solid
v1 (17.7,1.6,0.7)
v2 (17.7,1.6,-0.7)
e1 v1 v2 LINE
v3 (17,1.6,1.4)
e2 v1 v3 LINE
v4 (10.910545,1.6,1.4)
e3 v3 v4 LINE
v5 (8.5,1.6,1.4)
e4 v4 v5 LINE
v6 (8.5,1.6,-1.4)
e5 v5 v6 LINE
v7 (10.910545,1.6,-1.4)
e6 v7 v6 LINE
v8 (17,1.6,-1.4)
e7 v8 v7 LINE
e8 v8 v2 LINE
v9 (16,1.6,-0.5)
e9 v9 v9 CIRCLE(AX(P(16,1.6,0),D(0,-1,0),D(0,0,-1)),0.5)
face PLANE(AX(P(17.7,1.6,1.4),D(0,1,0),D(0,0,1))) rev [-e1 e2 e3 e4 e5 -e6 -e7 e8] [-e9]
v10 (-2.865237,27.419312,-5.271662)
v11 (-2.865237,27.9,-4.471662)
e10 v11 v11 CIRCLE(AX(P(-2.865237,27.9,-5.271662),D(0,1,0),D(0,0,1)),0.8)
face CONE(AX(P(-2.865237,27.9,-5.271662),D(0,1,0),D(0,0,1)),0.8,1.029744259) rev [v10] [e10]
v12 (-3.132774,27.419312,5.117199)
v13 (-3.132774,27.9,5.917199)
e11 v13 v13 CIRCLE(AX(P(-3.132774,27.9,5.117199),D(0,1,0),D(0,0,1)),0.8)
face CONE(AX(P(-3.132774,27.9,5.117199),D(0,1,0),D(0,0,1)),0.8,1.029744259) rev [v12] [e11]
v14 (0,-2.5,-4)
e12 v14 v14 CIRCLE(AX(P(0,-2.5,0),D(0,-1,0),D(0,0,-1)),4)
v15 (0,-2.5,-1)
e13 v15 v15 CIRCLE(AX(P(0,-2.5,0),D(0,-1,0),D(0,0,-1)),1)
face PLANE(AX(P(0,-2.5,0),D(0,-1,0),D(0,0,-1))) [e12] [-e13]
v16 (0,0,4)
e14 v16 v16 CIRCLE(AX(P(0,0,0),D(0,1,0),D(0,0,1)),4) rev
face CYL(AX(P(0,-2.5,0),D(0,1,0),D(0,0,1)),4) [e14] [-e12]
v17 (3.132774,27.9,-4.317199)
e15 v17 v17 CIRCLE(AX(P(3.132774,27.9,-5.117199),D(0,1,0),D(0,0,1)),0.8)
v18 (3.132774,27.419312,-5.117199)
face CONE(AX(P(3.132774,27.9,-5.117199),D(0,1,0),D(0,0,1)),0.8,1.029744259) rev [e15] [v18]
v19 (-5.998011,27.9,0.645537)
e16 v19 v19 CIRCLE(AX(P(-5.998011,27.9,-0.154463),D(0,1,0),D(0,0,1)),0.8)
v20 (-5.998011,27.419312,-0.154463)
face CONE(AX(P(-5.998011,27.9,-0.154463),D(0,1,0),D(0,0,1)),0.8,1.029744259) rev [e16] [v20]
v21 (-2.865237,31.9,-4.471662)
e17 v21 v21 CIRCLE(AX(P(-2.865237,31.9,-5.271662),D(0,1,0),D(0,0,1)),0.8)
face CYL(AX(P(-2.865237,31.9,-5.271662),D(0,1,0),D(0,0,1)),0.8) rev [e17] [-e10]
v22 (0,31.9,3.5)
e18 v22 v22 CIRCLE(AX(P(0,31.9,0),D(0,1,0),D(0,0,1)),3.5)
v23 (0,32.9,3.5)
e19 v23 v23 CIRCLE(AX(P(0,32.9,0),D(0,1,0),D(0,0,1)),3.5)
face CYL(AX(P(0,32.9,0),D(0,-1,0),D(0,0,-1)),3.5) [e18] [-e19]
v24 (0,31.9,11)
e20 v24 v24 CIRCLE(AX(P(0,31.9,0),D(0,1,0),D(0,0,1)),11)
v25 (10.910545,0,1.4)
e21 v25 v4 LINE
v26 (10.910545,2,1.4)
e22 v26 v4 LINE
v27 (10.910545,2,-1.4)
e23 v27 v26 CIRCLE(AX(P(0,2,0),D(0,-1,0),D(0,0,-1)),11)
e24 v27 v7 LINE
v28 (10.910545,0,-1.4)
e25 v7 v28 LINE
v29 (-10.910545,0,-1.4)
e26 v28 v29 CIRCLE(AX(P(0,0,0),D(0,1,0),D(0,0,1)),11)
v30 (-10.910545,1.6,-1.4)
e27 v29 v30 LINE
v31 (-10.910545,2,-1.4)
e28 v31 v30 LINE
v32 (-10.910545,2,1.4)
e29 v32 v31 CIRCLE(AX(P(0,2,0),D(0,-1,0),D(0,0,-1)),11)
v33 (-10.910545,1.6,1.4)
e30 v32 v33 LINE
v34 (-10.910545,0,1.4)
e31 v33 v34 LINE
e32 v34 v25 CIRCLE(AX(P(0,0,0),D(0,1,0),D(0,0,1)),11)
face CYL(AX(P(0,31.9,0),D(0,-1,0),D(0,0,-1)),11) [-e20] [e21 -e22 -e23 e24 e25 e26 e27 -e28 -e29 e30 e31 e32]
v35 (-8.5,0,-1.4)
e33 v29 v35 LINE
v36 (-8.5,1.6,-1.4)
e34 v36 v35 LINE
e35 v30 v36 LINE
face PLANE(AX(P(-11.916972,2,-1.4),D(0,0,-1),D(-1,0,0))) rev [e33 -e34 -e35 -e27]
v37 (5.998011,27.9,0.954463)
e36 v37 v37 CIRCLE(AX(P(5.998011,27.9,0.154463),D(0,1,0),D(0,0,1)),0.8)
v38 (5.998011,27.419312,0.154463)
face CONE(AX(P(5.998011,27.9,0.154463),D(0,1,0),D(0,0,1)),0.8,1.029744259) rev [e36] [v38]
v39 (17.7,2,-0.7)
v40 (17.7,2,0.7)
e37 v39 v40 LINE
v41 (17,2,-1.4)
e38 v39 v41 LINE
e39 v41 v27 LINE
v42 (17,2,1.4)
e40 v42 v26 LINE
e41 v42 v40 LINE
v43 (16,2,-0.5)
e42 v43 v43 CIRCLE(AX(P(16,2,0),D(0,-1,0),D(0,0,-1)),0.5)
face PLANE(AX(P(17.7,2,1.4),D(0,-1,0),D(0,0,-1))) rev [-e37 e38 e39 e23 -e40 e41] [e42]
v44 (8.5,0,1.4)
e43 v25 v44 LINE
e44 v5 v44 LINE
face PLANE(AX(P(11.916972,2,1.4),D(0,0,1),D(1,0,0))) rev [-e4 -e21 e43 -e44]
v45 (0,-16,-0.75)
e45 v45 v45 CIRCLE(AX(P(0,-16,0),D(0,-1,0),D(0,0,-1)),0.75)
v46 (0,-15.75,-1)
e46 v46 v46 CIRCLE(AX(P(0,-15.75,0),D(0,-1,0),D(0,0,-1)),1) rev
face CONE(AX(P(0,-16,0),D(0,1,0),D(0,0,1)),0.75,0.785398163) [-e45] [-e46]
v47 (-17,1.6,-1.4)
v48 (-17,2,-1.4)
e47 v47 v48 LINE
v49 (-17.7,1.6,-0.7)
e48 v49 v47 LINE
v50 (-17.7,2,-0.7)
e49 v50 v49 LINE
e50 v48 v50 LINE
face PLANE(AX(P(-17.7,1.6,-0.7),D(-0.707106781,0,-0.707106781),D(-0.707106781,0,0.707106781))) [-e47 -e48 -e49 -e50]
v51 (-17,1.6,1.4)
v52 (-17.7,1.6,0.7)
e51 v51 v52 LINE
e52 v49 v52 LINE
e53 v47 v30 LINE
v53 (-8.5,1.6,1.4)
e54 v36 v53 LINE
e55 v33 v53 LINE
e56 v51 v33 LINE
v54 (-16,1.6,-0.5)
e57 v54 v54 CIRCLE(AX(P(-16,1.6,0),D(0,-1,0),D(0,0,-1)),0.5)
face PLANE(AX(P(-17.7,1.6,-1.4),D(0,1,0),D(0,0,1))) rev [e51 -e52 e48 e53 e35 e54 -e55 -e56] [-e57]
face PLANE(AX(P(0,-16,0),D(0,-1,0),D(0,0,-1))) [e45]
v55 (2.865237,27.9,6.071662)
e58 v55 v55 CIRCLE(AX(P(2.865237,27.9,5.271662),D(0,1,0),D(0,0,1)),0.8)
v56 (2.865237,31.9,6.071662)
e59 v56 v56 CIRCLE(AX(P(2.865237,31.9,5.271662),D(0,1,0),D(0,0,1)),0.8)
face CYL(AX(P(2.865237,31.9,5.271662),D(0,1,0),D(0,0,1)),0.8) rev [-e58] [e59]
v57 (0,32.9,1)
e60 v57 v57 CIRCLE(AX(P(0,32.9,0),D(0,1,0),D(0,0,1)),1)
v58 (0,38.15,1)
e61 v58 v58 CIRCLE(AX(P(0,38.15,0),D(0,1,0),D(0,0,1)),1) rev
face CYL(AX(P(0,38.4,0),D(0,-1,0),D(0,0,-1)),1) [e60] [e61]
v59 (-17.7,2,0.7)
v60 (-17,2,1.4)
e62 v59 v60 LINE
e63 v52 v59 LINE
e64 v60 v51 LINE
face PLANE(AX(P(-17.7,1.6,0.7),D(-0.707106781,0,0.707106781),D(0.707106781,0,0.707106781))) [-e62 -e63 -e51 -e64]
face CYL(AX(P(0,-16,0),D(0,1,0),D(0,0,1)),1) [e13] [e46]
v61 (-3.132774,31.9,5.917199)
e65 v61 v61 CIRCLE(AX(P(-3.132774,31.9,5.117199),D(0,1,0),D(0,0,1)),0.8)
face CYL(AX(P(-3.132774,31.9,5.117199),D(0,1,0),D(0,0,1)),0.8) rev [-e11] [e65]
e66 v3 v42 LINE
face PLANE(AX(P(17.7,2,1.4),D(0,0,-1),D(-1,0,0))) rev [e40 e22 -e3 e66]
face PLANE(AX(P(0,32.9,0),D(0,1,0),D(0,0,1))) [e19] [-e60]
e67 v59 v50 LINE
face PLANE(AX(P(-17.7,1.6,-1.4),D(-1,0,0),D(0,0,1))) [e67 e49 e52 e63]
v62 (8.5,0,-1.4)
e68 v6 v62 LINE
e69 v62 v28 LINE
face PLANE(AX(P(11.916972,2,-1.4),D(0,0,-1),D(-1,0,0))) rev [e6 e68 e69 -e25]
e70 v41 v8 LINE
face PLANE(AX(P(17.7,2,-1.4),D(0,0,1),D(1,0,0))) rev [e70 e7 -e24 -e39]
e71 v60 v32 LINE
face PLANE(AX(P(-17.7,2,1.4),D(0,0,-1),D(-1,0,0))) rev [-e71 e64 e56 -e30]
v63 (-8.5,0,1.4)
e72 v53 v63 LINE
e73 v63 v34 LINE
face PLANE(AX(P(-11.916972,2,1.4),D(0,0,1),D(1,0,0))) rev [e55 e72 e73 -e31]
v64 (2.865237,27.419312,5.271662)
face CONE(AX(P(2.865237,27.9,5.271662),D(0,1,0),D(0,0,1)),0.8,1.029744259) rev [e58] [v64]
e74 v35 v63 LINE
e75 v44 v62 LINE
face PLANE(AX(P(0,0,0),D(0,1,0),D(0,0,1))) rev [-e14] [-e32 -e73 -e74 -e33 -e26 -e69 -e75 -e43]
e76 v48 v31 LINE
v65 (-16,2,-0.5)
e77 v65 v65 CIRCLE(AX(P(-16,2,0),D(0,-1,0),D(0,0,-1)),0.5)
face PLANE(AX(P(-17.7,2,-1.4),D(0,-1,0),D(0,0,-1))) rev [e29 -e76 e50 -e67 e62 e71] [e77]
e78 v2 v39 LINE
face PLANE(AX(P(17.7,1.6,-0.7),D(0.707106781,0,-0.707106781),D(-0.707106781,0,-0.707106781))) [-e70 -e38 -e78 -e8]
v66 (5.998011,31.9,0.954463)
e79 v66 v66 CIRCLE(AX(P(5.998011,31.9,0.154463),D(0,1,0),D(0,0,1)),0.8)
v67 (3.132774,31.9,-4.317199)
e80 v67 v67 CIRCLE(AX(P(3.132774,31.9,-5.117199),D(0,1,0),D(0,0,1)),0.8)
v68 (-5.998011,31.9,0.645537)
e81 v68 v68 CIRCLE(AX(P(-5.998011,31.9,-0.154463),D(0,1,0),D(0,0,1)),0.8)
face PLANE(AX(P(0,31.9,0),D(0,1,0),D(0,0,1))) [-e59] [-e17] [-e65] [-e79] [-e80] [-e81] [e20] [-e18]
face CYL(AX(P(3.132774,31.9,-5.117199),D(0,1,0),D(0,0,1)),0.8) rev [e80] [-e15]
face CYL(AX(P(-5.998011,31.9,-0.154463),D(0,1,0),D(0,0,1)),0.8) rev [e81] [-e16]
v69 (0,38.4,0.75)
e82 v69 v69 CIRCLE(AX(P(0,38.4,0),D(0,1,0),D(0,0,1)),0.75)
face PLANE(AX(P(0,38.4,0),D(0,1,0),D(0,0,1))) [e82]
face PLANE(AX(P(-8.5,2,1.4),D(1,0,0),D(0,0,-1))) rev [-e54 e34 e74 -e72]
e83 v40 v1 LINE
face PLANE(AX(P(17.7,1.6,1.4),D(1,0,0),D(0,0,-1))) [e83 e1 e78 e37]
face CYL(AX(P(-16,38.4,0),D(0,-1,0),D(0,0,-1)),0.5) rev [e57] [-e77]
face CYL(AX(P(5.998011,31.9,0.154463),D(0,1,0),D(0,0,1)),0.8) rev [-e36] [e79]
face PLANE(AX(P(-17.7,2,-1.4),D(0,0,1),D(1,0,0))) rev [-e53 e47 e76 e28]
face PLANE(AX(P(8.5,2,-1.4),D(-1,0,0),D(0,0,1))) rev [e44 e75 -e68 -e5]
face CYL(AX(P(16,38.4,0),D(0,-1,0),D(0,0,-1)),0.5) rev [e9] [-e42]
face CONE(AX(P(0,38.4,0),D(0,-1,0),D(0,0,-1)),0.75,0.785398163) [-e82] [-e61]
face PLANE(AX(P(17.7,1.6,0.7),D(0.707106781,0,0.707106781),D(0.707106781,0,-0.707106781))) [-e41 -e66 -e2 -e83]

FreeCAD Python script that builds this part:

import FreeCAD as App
import Part
import Sketcher
from FreeCAD import Vector
Q = App.Units.Quantity


def edges_at(feature, points):
    """Names of the edges that pass closest to the given points."""
    edges = feature.Shape.Edges
    near = lambda p: min(range(len(edges)), key=lambda i: edges[i].distToShape(Part.Vertex(*p))[0])
    return sorted({f"Edge{near(p) + 1}" for p in points})


def add_polygon(sketch, points):
    """Adds a closed chain of lines whose ends are joined by coincident constraints."""
    first, n = sketch.GeometryCount, len(points)
    for a, b in zip(points, points[1:] + points[:1]):
        sketch.addGeometry(Part.LineSegment(App.Vector(*a, 0), App.Vector(*b, 0)), False)
    for i in range(n):
        sketch.addConstraint(Sketcher.Constraint("Coincident", first + i, 2, first + (i + 1) % n, 1))

doc = App.newDocument("Part")
body = doc.addObject("PartDesign::Body", "Body")

# Sketch on XZ plane
sketch1 = body.newObject("Sketcher::SketchObject", "Sketch")
sketch1.AttachmentSupport = (doc.getObject("XZ_Plane"), [""])
sketch1.MapMode = "FlatFace"
sketch1.addGeometry(Part.Circle(Vector(0, 0, 0), Vector(0, 0, 1), 11), False)
sketch1.addConstraint([
    Sketcher.Constraint("Coincident", 0, 3, -1, 1),
    Sketcher.Constraint("Diameter", 0, Q("22 mm")),
])
pad1 = body.newObject("PartDesign::Pad", "Pad")
pad1.Profile = sketch1
pad1.Length = 31.9
pad1.Reversed = True

# Sketch on XZ plane
sketch2 = body.newObject("Sketcher::SketchObject", "Sketch001")
sketch2.AttachmentSupport = (doc.getObject("XZ_Plane"), [""])
sketch2.MapMode = "FlatFace"
sketch2.AttachmentOffset = App.Placement(Vector(0, 0, -31.9), App.Rotation())
sketch2.addGeometry(Part.Circle(Vector(0, 0, 0), Vector(0, 0, 1), 3.5), False)
sketch2.addConstraint([
    Sketcher.Constraint("Coincident", 0, 3, -1, 1),
    Sketcher.Constraint("Diameter", 0, Q("7 mm")),
])
pad2 = body.newObject("PartDesign::Pad", "Pad001")
pad2.Profile = sketch2
pad2.Length = 1
pad2.Reversed = True

# Sketch on XZ plane
sketch3 = body.newObject("Sketcher::SketchObject", "Sketch002")
sketch3.AttachmentSupport = (doc.getObject("XZ_Plane"), [""])
sketch3.MapMode = "FlatFace"
sketch3.AttachmentOffset = App.Placement(Vector(0, 0, -32.9), App.Rotation())
sketch3.addGeometry(Part.Circle(Vector(0, 0, 0), Vector(0, 0, 1), 1), False)
sketch3.addConstraint([
    Sketcher.Constraint("Coincident", 0, 3, -1, 1),
    Sketcher.Constraint("Diameter", 0, Q("2 mm")),
])
pad3 = body.newObject("PartDesign::Pad", "Pad002")
pad3.Profile = sketch3
pad3.Length = 5.5
pad3.Reversed = True
doc.recompute()

chamfer = body.newObject("PartDesign::Chamfer", "Chamfer")
chamfer.Base = (pad3, edges_at(pad3, [(-1, 38.4, 0)]))
chamfer.Size = 0.25

# Sketch on XZ plane
sketch4 = body.newObject("Sketcher::SketchObject", "Sketch003")
sketch4.AttachmentSupport = (doc.getObject("XZ_Plane"), [""])
sketch4.MapMode = "FlatFace"
sketch4.addGeometry(Part.Circle(Vector(0, 0, 0), Vector(0, 0, 1), 4), False)
sketch4.addConstraint([
    Sketcher.Constraint("Coincident", 0, 3, -1, 1),
    Sketcher.Constraint("Diameter", 0, Q("8 mm")),
])
pad4 = body.newObject("PartDesign::Pad", "Pad003")
pad4.Profile = sketch4
pad4.Length = 2.5

# Sketch on XZ plane
sketch5 = body.newObject("Sketcher::SketchObject", "Sketch004")
sketch5.AttachmentSupport = (doc.getObject("XZ_Plane"), [""])
sketch5.MapMode = "FlatFace"
sketch5.AttachmentOffset = App.Placement(Vector(0, 0, 2.5), App.Rotation())
sketch5.addGeometry(Part.Circle(Vector(0, 0, 0), Vector(0, 0, 1), 1), False)
sketch5.addConstraint([
    Sketcher.Constraint("Coincident", 0, 3, -1, 1),
    Sketcher.Constraint("Diameter", 0, Q("2 mm")),
])
pad5 = body.newObject("PartDesign::Pad", "Pad004")
pad5.Profile = sketch5
pad5.Length = 13.5

# Sketch on YZ plane
sketch6 = body.newObject("Sketcher::SketchObject", "Sketch005")
sketch6.AttachmentSupport = (doc.getObject("YZ_Plane"), [""])
sketch6.MapMode = "FlatFace"
sketch6.AttachmentOffset = App.Placement(Vector(0, 0, -2.865237), App.Rotation())
add_polygon(sketch6, [(27.4, -5.3), (31.9, -5.3), (31.9, -4.5), (27.9, -4.5)])  # lines 0-3
sketch6.addGeometry(Part.LineSegment(Vector(31.9, -5.3, 0), Vector(27.4, -5.3, 0)), True)  # axis
sketch6.addConstraint([
    Sketcher.Constraint("Horizontal", 0),
    Sketcher.Constraint("Vertical", 1),
    Sketcher.Constraint("Horizontal", 2),
    Sketcher.Constraint("Horizontal", 4),
    Sketcher.Constraint("Coincident", 4, 1, 0, 2),
    Sketcher.Constraint("Equal", 0, 4),
    Sketcher.Constraint("DistanceX", 2, 2, 2, 1, Q("4 mm")),
    Sketcher.Constraint("Angle", 3, Q("-121 deg")),
    Sketcher.Constraint("DistanceY", 1, 1, 1, 2, Q("0.8 mm")),
    Sketcher.Constraint("DistanceX", -1, 1, 0, 2, Q("31.9 mm")),
    Sketcher.Constraint("DistanceY", 0, 2, -1, 1, Q("5.271662 mm")),
])
groove = body.newObject("PartDesign::Groove", "Groove")
groove.Profile = sketch6
groove.ReferenceAxis = (sketch6, ["Axis0"])
groove.Angle = 360
doc.recompute()

polarpattern = body.newObject("PartDesign::PolarPattern", "PolarPattern")
polarpattern.Originals = [groove]
polarpattern.Axis = (doc.getObject("Y_Axis"), [""])
polarpattern.Angle = 360
polarpattern.Occurrences = 6
body.Tip = polarpattern
doc.recompute()

chamfer2 = body.newObject("PartDesign::Chamfer", "Chamfer001")
chamfer2.Base = (polarpattern, edges_at(polarpattern, [(-1, -16, 0)]))
chamfer2.Size = 0.25

# Sketch on XZ plane
sketch7 = body.newObject("Sketcher::SketchObject", "Sketch006")
sketch7.AttachmentSupport = (doc.getObject("XZ_Plane"), [""])
sketch7.MapMode = "FlatFace"
add_polygon(sketch7, [(-11.9, 1.4), (-11.9, -1.4), (-8.5, -1.4), (-8.5, 1.4)])  # lines 0-3
sketch7.addConstraint([
    Sketcher.Constraint("Vertical", 0),
    Sketcher.Constraint("Horizontal", 1),
    Sketcher.Constraint("Vertical", 2),
    Sketcher.Constraint("Horizontal", 3),
    Sketcher.Constraint("DistanceY", 0, 2, 0, 1, Q("2.8 mm")),
    Sketcher.Constraint("DistanceY", 0, 2, -1, 1, Q("1.4 mm")),
    Sketcher.Constraint("DistanceX", 1, 2, -1, 1, Q("8.5 mm")),
    Sketcher.Constraint("DistanceX", 1, 1, 1, 2, Q("3.416972 mm")),
])
pocket1 = body.newObject("PartDesign::Pocket", "Pocket")
pocket1.Profile = sketch7
pocket1.Length = 2
doc.recompute()

polarpattern2 = body.newObject("PartDesign::PolarPattern", "PolarPattern001")
polarpattern2.Originals = [pocket1]
polarpattern2.Axis = (doc.getObject("Y_Axis"), [""])
polarpattern2.Angle = 360
polarpattern2.Occurrences = 2
body.Tip = polarpattern2

# Sketch on YZ plane
sketch8 = body.newObject("Sketcher::SketchObject", "Sketch007")
sketch8.AttachmentSupport = (doc.getObject("YZ_Plane"), [""])
sketch8.MapMode = "FlatFace"
sketch8.AttachmentOffset = App.Placement(Vector(0, 0, 8.5), App.Rotation())
add_polygon(sketch8, [(2, 1.4), (1.6, 1.4), (1.6, -1.4), (2, -1.4)])  # lines 0-3
sketch8.addConstraint([
    Sketcher.Constraint("Horizontal", 0),
    Sketcher.Constraint("Vertical", 1),
    Sketcher.Constraint("Horizontal", 2),
    Sketcher.Constraint("Vertical", 3),
    Sketcher.Constraint("DistanceX", 0, 2, 0, 1, Q("0.4 mm")),
    Sketcher.Constraint("DistanceY", 1, 2, 1, 1, Q("2.8 mm")),
    Sketcher.Constraint("DistanceX", -1, 1, 2, 2, Q("2 mm")),
    Sketcher.Constraint("DistanceY", -1, 1, 0, 2, Q("1.4 mm")),
])
pad6 = body.newObject("PartDesign::Pad", "Pad005")
pad6.Profile = sketch8
pad6.Length = 9.2

# Sketch on YZ plane
sketch9 = body.newObject("Sketcher::SketchObject", "Sketch008")
sketch9.AttachmentSupport = (doc.getObject("YZ_Plane"), [""])
sketch9.MapMode = "FlatFace"
sketch9.AttachmentOffset = App.Placement(Vector(0, 0, -8.5), App.Rotation())
add_polygon(sketch9, [(2, -1.4), (1.6, -1.4), (1.6, 1.4), (2, 1.4)])  # lines 0-3
sketch9.addConstraint([
    Sketcher.Constraint("Horizontal", 0),
    Sketcher.Constraint("Vertical", 1),
    Sketcher.Constraint("Horizontal", 2),
    Sketcher.Constraint("Vertical", 3),
    Sketcher.Constraint("DistanceX", 0, 2, 0, 1, Q("0.4 mm")),
    Sketcher.Constraint("DistanceY", 1, 1, 1, 2, Q("2.8 mm")),
    Sketcher.Constraint("DistanceX", -1, 1, 2, 2, Q("2 mm")),
    Sketcher.Constraint("DistanceY", 0, 2, -1, 1, Q("1.4 mm")),
])
pad7 = body.newObject("PartDesign::Pad", "Pad006")
pad7.Profile = sketch9
pad7.Length = 9.2
pad7.Reversed = True
doc.recompute()

chamfer3 = body.newObject("PartDesign::Chamfer", "Chamfer002")
chamfer3.Base = (pad7, edges_at(pad7, [(17.7, 1.8, 1.4), (17.7, 1.8, -1.4)]))
chamfer3.Size = 0.7
doc.recompute()

chamfer4 = body.newObject("PartDesign::Chamfer", "Chamfer003")
chamfer4.Base = (chamfer3, edges_at(chamfer3, [(-17.7, 1.8, -1.4), (-17.7, 1.8, 1.4)]))
chamfer4.Size = 0.7

# Sketch on XZ plane
sketch10 = body.newObject("Sketcher::SketchObject", "Sketch009")
sketch10.AttachmentSupport = (doc.getObject("XZ_Plane"), [""])
sketch10.MapMode = "FlatFace"
sketch10.AttachmentOffset = App.Placement(Vector(0, 0, -1.6), App.Rotation())
sketch10.addGeometry(Part.Circle(Vector(-16, 0, 0), Vector(0, 0, 1), 0.5), False)
sketch10.addConstraint([
    Sketcher.Constraint("PointOnObject", 0, 3, -1),
    Sketcher.Constraint("Diameter", 0, Q("1 mm")),
    Sketcher.Constraint("DistanceX", 0, 3, -1, 1, Q("16 mm")),
])
pocket2 = body.newObject("PartDesign::Pocket", "Pocket001")
pocket2.Profile = sketch10
pocket2.Type = "ThroughAll"

# Sketch on XZ plane
sketch11 = body.newObject("Sketcher::SketchObject", "Sketch010")
sketch11.AttachmentSupport = (doc.getObject("XZ_Plane"), [""])
sketch11.MapMode = "FlatFace"
sketch11.AttachmentOffset = App.Placement(Vector(0, 0, -1.6), App.Rotation())
sketch11.addGeometry(Part.Circle(Vector(16, 0, 0), Vector(0, 0, 1), 0.5), False)
sketch11.addConstraint([
    Sketcher.Constraint("PointOnObject", 0, 3, -1),
    Sketcher.Constraint("Diameter", 0, Q("1 mm")),
    Sketcher.Constraint("DistanceX", -1, 1, 0, 3, Q("16 mm")),
])
pocket3 = body.newObject("PartDesign::Pocket", "Pocket002")
pocket3.Profile = sketch11
pocket3.Type = "ThroughAll"

doc.recompute()
